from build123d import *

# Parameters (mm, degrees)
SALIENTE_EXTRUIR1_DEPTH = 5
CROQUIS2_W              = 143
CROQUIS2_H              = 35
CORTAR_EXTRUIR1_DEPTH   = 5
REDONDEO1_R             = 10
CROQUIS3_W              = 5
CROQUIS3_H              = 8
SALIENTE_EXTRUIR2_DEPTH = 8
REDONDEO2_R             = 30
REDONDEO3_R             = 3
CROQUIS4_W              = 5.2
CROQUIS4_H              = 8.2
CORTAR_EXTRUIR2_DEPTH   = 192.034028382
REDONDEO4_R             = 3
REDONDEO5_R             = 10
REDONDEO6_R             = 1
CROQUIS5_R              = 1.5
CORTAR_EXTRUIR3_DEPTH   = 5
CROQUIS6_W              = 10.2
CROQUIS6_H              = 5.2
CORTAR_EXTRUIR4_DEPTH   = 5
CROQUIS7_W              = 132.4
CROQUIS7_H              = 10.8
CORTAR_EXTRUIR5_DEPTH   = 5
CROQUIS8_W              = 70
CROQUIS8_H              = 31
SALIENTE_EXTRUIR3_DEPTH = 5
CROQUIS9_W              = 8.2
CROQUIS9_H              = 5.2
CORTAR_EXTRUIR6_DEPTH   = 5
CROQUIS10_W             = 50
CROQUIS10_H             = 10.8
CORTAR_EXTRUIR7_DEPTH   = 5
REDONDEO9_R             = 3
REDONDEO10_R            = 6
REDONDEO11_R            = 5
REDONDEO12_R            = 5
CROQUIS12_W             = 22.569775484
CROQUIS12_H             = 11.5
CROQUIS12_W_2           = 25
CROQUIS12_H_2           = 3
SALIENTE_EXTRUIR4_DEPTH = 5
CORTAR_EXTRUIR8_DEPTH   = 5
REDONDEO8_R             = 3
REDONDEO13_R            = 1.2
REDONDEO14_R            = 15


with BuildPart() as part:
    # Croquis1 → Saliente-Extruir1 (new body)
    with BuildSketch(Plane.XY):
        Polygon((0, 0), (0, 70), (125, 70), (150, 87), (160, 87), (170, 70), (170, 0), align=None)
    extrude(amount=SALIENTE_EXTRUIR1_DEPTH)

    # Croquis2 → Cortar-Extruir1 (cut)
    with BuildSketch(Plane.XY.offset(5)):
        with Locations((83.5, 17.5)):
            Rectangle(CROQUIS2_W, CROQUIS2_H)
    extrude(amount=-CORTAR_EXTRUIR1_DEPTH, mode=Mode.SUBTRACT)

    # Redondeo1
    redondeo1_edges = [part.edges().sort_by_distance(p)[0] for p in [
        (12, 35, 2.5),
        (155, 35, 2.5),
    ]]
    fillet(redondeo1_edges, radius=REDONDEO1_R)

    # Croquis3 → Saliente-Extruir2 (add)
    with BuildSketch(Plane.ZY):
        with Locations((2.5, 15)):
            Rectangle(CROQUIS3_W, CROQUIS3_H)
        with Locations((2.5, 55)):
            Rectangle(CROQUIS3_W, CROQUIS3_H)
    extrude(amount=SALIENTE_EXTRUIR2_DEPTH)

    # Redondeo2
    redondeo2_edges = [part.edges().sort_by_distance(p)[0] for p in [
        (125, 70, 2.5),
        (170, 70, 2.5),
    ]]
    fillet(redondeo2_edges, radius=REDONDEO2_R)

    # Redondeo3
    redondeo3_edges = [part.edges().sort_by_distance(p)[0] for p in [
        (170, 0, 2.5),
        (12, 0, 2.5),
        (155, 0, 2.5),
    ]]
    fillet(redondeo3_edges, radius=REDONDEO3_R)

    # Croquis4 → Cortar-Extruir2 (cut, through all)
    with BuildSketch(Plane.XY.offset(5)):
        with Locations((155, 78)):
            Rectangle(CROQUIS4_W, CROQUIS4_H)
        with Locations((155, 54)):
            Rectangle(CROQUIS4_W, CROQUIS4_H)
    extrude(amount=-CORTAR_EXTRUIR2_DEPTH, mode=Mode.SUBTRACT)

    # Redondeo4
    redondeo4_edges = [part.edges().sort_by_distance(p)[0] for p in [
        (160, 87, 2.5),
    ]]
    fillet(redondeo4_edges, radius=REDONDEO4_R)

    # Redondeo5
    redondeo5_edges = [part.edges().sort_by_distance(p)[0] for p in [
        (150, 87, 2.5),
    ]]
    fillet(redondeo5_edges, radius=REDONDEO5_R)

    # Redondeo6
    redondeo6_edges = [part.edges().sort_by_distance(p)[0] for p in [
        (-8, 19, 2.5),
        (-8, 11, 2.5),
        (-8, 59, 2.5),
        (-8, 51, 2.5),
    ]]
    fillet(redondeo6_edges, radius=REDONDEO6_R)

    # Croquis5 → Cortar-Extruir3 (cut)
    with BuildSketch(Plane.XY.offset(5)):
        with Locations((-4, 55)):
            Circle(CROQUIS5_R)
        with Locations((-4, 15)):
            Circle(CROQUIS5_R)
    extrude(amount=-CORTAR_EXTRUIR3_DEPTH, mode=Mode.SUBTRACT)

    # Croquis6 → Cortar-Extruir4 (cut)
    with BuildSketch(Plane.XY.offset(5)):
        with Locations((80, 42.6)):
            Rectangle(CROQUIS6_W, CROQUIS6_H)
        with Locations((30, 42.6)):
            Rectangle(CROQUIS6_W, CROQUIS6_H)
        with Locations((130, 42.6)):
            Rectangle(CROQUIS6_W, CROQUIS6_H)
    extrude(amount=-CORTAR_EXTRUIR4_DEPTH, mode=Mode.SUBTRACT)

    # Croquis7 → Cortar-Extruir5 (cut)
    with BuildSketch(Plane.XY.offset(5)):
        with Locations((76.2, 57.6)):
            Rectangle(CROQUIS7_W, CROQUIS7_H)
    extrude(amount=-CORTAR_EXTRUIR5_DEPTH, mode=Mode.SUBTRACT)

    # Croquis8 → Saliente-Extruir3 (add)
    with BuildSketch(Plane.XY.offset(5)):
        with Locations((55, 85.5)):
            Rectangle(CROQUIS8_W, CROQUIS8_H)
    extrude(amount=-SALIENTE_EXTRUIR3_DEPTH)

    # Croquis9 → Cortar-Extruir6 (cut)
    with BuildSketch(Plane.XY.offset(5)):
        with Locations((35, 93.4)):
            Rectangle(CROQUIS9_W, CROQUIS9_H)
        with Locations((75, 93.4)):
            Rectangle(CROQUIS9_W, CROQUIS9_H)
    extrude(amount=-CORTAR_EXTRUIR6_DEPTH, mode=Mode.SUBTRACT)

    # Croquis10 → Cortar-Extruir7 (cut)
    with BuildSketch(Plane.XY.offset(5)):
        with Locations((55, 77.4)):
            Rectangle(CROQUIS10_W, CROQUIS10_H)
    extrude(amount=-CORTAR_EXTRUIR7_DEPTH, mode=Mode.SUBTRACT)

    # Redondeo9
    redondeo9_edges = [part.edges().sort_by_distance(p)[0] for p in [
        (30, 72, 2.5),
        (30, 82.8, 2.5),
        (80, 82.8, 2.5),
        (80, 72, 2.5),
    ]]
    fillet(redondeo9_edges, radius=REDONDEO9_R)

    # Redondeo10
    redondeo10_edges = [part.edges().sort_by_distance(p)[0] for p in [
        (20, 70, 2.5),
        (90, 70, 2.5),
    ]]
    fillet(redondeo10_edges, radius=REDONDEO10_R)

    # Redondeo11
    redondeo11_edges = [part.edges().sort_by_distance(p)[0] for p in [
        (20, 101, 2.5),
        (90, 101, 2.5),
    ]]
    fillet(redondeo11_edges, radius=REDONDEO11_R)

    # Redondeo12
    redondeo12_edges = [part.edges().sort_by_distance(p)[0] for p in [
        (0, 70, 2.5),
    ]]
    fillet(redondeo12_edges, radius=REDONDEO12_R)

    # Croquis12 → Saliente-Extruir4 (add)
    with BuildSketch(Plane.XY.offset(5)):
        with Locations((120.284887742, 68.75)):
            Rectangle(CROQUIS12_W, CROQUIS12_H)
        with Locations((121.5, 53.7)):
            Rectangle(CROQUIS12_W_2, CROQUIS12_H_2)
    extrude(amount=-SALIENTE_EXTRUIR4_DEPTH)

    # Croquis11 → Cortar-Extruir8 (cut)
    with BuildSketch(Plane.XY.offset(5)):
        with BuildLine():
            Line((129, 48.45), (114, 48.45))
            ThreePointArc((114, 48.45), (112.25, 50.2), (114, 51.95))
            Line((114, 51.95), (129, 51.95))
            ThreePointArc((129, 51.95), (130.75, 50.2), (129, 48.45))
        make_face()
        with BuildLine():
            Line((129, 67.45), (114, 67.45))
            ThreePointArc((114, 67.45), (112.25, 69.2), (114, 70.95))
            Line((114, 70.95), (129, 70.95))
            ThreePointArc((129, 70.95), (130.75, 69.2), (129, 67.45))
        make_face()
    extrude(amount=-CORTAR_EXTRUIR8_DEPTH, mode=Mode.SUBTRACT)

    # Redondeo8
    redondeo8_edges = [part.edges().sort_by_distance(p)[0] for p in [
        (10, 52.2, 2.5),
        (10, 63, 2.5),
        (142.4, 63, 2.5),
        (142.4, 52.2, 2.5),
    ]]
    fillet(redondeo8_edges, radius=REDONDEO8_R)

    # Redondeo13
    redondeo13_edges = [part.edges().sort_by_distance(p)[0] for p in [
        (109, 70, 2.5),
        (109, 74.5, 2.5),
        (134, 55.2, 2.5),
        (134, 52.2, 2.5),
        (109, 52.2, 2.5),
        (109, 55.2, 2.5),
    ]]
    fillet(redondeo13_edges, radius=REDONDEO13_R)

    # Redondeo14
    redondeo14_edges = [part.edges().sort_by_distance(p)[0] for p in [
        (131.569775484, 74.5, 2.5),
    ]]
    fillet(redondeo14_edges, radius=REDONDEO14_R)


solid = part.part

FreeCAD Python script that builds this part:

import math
import FreeCAD as App
import Part
import Sketcher

V = App.Vector
Q = App.Units.Quantity


def edges_at(feature, points):
    """Names of the edges that pass closest to the given points."""
    edges = feature.Shape.Edges
    near = lambda p: min(range(len(edges)), key=lambda i: edges[i].distToShape(Part.Vertex(*p))[0])
    return sorted({f"Edge{near(p) + 1}" for p in points})


def add_polygon(sketch, points):
    """Adds a closed chain of lines whose ends are joined by coincident constraints."""
    first, n = sketch.GeometryCount, len(points)
    for a, b in zip(points, points[1:] + points[:1]):
        sketch.addGeometry(Part.LineSegment(App.Vector(*a, 0), App.Vector(*b, 0)), False)
    for i in range(n):
        sketch.addConstraint(Sketcher.Constraint("Coincident", first + i, 2, first + (i + 1) % n, 1))

doc = App.newDocument("Part")
body = doc.addObject("PartDesign::Body", "Body")

# Sketch on XY plane
sketch1 = body.newObject("Sketcher::SketchObject", "Sketch")
sketch1.AttachmentSupport = (doc.getObject("XY_Plane"), [""])
sketch1.MapMode = "FlatFace"
add_polygon(sketch1, [(0, 70), (0, 0), (170, 0), (170, 70), (160, 87), (150, 87), (125, 70)])  # lines 0-6
sketch1.addConstraint([
    Sketcher.Constraint("Vertical", 0),
    Sketcher.Constraint("Horizontal", 1),
    Sketcher.Constraint("Vertical", 2),
    Sketcher.Constraint("Horizontal", 4),
    Sketcher.Constraint("Horizontal", 6),
    Sketcher.Constraint("Coincident", 0, 2, -1, 1),
    Sketcher.Constraint("Horizontal", 2, 2, 5, 2),
    Sketcher.Constraint("DistanceX", 1, 1, 1, 2, Q("170 mm")),
    Sketcher.Constraint("DistanceX", 4, 2, 4, 1, Q("10 mm")),
    Sketcher.Constraint("DistanceX", 6, 2, 6, 1, Q("125 mm")),
    Sketcher.Constraint("DistanceY", 0, 2, 0, 1, Q("70 mm")),
    Sketcher.Constraint("DistanceX", -1, 1, 3, 2, Q("160 mm")),
    Sketcher.Constraint("DistanceY", -1, 1, 3, 2, Q("87 mm")),
])
pad1 = body.newObject("PartDesign::Pad", "Pad")
pad1.Profile = sketch1
pad1.Length = 5

# Sketch on XY plane
sketch2 = body.newObject("Sketcher::SketchObject", "Sketch001")
sketch2.AttachmentSupport = (doc.getObject("XY_Plane"), [""])
sketch2.MapMode = "FlatFace"
sketch2.AttachmentOffset = App.Placement(V(0, 0, 5), App.Rotation())
add_polygon(sketch2, [(12, 35), (12, 0), (155, 0), (155, 35)])  # lines 0-3
sketch2.addConstraint([
    Sketcher.Constraint("Vertical", 0),
    Sketcher.Constraint("Horizontal", 1),
    Sketcher.Constraint("Vertical", 2),
    Sketcher.Constraint("Horizontal", 3),
    Sketcher.Constraint("PointOnObject", 0, 2, -1),
    Sketcher.Constraint("DistanceX", 1, 1, 1, 2, Q("143 mm")),
    Sketcher.Constraint("DistanceY", 0, 2, 0, 1, Q("35 mm")),
    Sketcher.Constraint("DistanceX", -1, 1, 0, 2, Q("12 mm")),
])
pocket1 = body.newObject("PartDesign::Pocket", "Pocket")
pocket1.Profile = sketch2
pocket1.Length = 5
doc.recompute()

fillet = body.newObject("PartDesign::Fillet", "Fillet")
fillet.Base = (pocket1, edges_at(pocket1, [(12, 35, 2.5), (155, 35, 2.5)]))
fillet.Radius = 10

# Sketch on YZ plane
sketch3 = body.newObject("Sketcher::SketchObject", "Sketch002")
sketch3.AttachmentSupport = (doc.getObject("YZ_Plane"), [""])
sketch3.MapMode = "FlatFace"
add_polygon(sketch3, [(19, 0), (11, 0), (11, 5), (19, 5)])  # lines 0-3
add_polygon(sketch3, [(59, 0), (51, 0), (51, 5), (59, 5)])  # lines 4-7
sketch3.addConstraint([
    Sketcher.Constraint("Horizontal", 0),
    Sketcher.Constraint("Vertical", 1),
    Sketcher.Constraint("Horizontal", 2),
    Sketcher.Constraint("Vertical", 3),
    Sketcher.Constraint("Horizontal", 4),
    Sketcher.Constraint("Vertical", 5),
    Sketcher.Constraint("Horizontal", 6),
    Sketcher.Constraint("Vertical", 7),
    Sketcher.Constraint("PointOnObject", 0, 2, -1),
    Sketcher.Constraint("PointOnObject", 4, 2, -1),
    Sketcher.Constraint("Horizontal", 2, 2, 5, 2),
    Sketcher.Constraint("Equal", 2, 4),
    Sketcher.Constraint("DistanceX", 0, 2, 0, 1, Q("8 mm")),
    Sketcher.Constraint("DistanceY", 1, 1, 1, 2, Q("5 mm")),
    Sketcher.Constraint("DistanceX", -1, 1, 0, 2, Q("11 mm")),
    Sketcher.Constraint("DistanceX", -1, 1, 4, 2, Q("51 mm")),
])
pad2 = body.newObject("PartDesign::Pad", "Pad001")
pad2.Profile = sketch3
pad2.Length = 8
pad2.Reversed = True
doc.recompute()

fillet2 = body.newObject("PartDesign::Fillet", "Fillet001")
fillet2.Base = (pad2, edges_at(pad2, [(125, 70, 2.5), (170, 70, 2.5)]))
fillet2.Radius = 30
doc.recompute()

fillet3 = body.newObject("PartDesign::Fillet", "Fillet002")
fillet3.Base = (fillet2, edges_at(fillet2, [(170, 0, 2.5), (12, 0, 2.5), (155, 0, 2.5)]))
fillet3.Radius = 3

# Sketch on XY plane
sketch4 = body.newObject("Sketcher::SketchObject", "Sketch003")
sketch4.AttachmentSupport = (doc.getObject("XY_Plane"), [""])
sketch4.MapMode = "FlatFace"
sketch4.AttachmentOffset = App.Placement(V(0, 0, 5), App.Rotation())
add_polygon(sketch4, [(152, 82), (152, 74), (158, 74), (158, 82)])  # lines 0-3
add_polygon(sketch4, [(152, 58), (152, 50), (158, 50), (158, 58)])  # lines 4-7
sketch4.addConstraint([
    Sketcher.Constraint("Vertical", 0),
    Sketcher.Constraint("Horizontal", 1),
    Sketcher.Constraint("Vertical", 2),
    Sketcher.Constraint("Horizontal", 3),
    Sketcher.Constraint("Vertical", 4),
    Sketcher.Constraint("Horizontal", 5),
    Sketcher.Constraint("Vertical", 6),
    Sketcher.Constraint("Horizontal", 7),
    Sketcher.Constraint("Vertical", 3, 2, 4, 2),
    Sketcher.Constraint("Vertical", 2, 2, 5, 2),
    Sketcher.Constraint("Equal", 2, 4),
    Sketcher.Constraint("DistanceX", 1, 1, 1, 2, Q("5.2 mm")),
    Sketcher.Constraint("DistanceY", 0, 2, 0, 1, Q("8.2 mm")),
    Sketcher.Constraint("DistanceY", 4, 2, 0, 2, Q("24 mm")),
    Sketcher.Constraint("DistanceX", -1, 1, 0, 2, Q("152.4 mm")),
    Sketcher.Constraint("DistanceY", -1, 1, 0, 2, Q("73.9 mm")),
])
pocket2 = body.newObject("PartDesign::Pocket", "Pocket001")
pocket2.Profile = sketch4
pocket2.Type = "ThroughAll"
doc.recompute()

fillet4 = body.newObject("PartDesign::Fillet", "Fillet003")
fillet4.Base = (pocket2, edges_at(pocket2, [(160, 87, 2.5)]))
fillet4.Radius = 3
doc.recompute()

fillet5 = body.newObject("PartDesign::Fillet", "Fillet004")
fillet5.Base = (fillet4, edges_at(fillet4, [(150, 87, 2.5)]))
fillet5.Radius = 10
doc.recompute()

fillet6 = body.newObject("PartDesign::Fillet", "Fillet005")
fillet6.Base = (fillet5, edges_at(fillet5, [
    (-8, 19, 2.5),
    (-8, 11, 2.5),
    (-8, 59, 2.5),
    (-8, 51, 2.5),
]))
fillet6.Radius = 1

# Sketch on XY plane
sketch5 = body.newObject("Sketcher::SketchObject", "Sketch004")
sketch5.AttachmentSupport = (doc.getObject("XY_Plane"), [""])
sketch5.MapMode = "FlatFace"
sketch5.AttachmentOffset = App.Placement(V(0, 0, 5), App.Rotation())
sketch5.addGeometry([
    Part.Circle(V(-4, 55, 0), V(0, 0, 1), 1.5),
    Part.Circle(V(-4, 15, 0), V(0, 0, 1), 1.5),
], False)
sketch5.addConstraint([
    Sketcher.Constraint("Equal", 0, 1),
    Sketcher.Constraint("Vertical", 0, 3, 1, 3),
    Sketcher.Constraint("Diameter", 0, Q("3 mm")),
    Sketcher.Constraint("DistanceX", 0, 3, -1, 1, Q("4 mm")),
    Sketcher.Constraint("DistanceY", -1, 1, 0, 3, Q("55 mm")),
    Sketcher.Constraint("DistanceY", -1, 1, 1, 3, Q("15 mm")),
])
pocket3 = body.newObject("PartDesign::Pocket", "Pocket002")
pocket3.Profile = sketch5
pocket3.Length = 5

# Sketch on XY plane
sketch6 = body.newObject("Sketcher::SketchObject", "Sketch005")
sketch6.AttachmentSupport = (doc.getObject("XY_Plane"), [""])
sketch6.MapMode = "FlatFace"
sketch6.AttachmentOffset = App.Placement(V(0, 0, 5), App.Rotation())
add_polygon(sketch6, [(75, 45), (75, 40), (85, 40), (85, 45)])  # lines 0-3
add_polygon(sketch6, [(25, 45), (25, 40), (35, 40), (35, 45)])  # lines 4-7
add_polygon(sketch6, [(125, 45), (125, 40), (135, 40), (135, 45)])  # lines 8-11
sketch6.addConstraint([
    Sketcher.Constraint("Vertical", 0),
    Sketcher.Constraint("Horizontal", 1),
    Sketcher.Constraint("Vertical", 2),
    Sketcher.Constraint("Horizontal", 3),
    Sketcher.Constraint("Vertical", 4),
    Sketcher.Constraint("Horizontal", 5),
    Sketcher.Constraint("Vertical", 6),
    Sketcher.Constraint("Horizontal", 7),
    Sketcher.Constraint("Vertical", 8),
    Sketcher.Constraint("Horizontal", 9),
    Sketcher.Constraint("Vertical", 10),
    Sketcher.Constraint("Horizontal", 11),
    Sketcher.Constraint("Horizontal", 1, 2, 4, 2),
    Sketcher.Constraint("Horizontal", 3, 2, 6, 2),
    Sketcher.Constraint("Horizontal", 5, 2, 8, 2),
    Sketcher.Constraint("Horizontal", 7, 2, 10, 2),
    Sketcher.Constraint("Equal", 3, 5),
    Sketcher.Constraint("Equal", 7, 9),
    Sketcher.Constraint("DistanceX", 1, 1, 1, 2, Q("10.2 mm")),
    Sketcher.Constraint("DistanceY", 0, 2, 0, 1, Q("5.2 mm")),
    Sketcher.Constraint("DistanceY", -1, 1, 0, 2, Q("40 mm")),
    Sketcher.Constraint("DistanceX", 4, 2, 0, 2, Q("50 mm")),
    Sketcher.Constraint("DistanceX", 0, 2, 8, 2, Q("50 mm")),
    Sketcher.Constraint("DistanceX", -1, 1, 0, 2, Q("74.9 mm")),
])
pocket4 = body.newObject("PartDesign::Pocket", "Pocket003")
pocket4.Profile = sketch6
pocket4.Length = 5

# Sketch on XY plane
sketch7 = body.newObject("Sketcher::SketchObject", "Sketch006")
sketch7.AttachmentSupport = (doc.getObject("XY_Plane"), [""])
sketch7.MapMode = "FlatFace"
sketch7.AttachmentOffset = App.Placement(V(0, 0, 5), App.Rotation())
add_polygon(sketch7, [(10, 63), (10, 52), (142, 52), (142, 63)])  # lines 0-3
sketch7.addConstraint([
    Sketcher.Constraint("Vertical", 0),
    Sketcher.Constraint("Horizontal", 1),
    Sketcher.Constraint("Vertical", 2),
    Sketcher.Constraint("Horizontal", 3),
    Sketcher.Constraint("DistanceX", 1, 1, 1, 2, Q("132.4 mm")),
    Sketcher.Constraint("DistanceY", 0, 2, 0, 1, Q("10.8 mm")),
    Sketcher.Constraint("DistanceX", -1, 1, 0, 2, Q("10 mm")),
    Sketcher.Constraint("DistanceY", -1, 1, 2, 2, Q("63 mm")),
])
pocket5 = body.newObject("PartDesign::Pocket", "Pocket004")
pocket5.Profile = sketch7
pocket5.Length = 5

# Sketch on XY plane
sketch8 = body.newObject("Sketcher::SketchObject", "Sketch007")
sketch8.AttachmentSupport = (doc.getObject("XY_Plane"), [""])
sketch8.MapMode = "FlatFace"
sketch8.AttachmentOffset = App.Placement(V(0, 0, 5), App.Rotation())
add_polygon(sketch8, [(20, 101), (20, 70), (90, 70), (90, 101)])  # lines 0-3
sketch8.addConstraint([
    Sketcher.Constraint("Vertical", 0),
    Sketcher.Constraint("Horizontal", 1),
    Sketcher.Constraint("Vertical", 2),
    Sketcher.Constraint("Horizontal", 3),
    Sketcher.Constraint("DistanceX", 1, 1, 1, 2, Q("70 mm")),
    Sketcher.Constraint("DistanceY", 0, 2, 0, 1, Q("31 mm")),
    Sketcher.Constraint("DistanceX", -1, 1, 0, 2, Q("20 mm")),
    Sketcher.Constraint("DistanceY", -1, 1, 0, 2, Q("70 mm")),
])
pad3 = body.newObject("PartDesign::Pad", "Pad002")
pad3.Profile = sketch8
pad3.Length = 5
pad3.Reversed = True

# Sketch on XY plane
sketch9 = body.newObject("Sketcher::SketchObject", "Sketch008")
sketch9.AttachmentSupport = (doc.getObject("XY_Plane"), [""])
sketch9.MapMode = "FlatFace"
sketch9.AttachmentOffset = App.Placement(V(0, 0, 5), App.Rotation())
add_polygon(sketch9, [(31, 96), (31, 91), (39, 91), (39, 96)])  # lines 0-3
add_polygon(sketch9, [(71, 96), (71, 91), (79, 91), (79, 96)])  # lines 4-7
sketch9.addConstraint([
    Sketcher.Constraint("Vertical", 0),
    Sketcher.Constraint("Horizontal", 1),
    Sketcher.Constraint("Vertical", 2),
    Sketcher.Constraint("Horizontal", 3),
    Sketcher.Constraint("Vertical", 4),
    Sketcher.Constraint("Horizontal", 5),
    Sketcher.Constraint("Vertical", 6),
    Sketcher.Constraint("Horizontal", 7),
    Sketcher.Constraint("Horizontal", 1, 2, 4, 2),
    Sketcher.Constraint("Horizontal", 3, 2, 6, 2),
    Sketcher.Constraint("Equal", 3, 5),
    Sketcher.Constraint("DistanceX", 1, 1, 1, 2, Q("8.2 mm")),
    Sketcher.Constraint("DistanceY", 0, 2, 0, 1, Q("5.2 mm")),
    Sketcher.Constraint("DistanceY", -1, 1, 2, 2, Q("96 mm")),
    Sketcher.Constraint("DistanceX", 0, 2, 4, 2, Q("40 mm")),
    Sketcher.Constraint("DistanceX", -1, 1, 0, 2, Q("30.9 mm")),
])
pocket6 = body.newObject("PartDesign::Pocket", "Pocket005")
pocket6.Profile = sketch9
pocket6.Length = 5

# Sketch on XY plane
sketch10 = body.newObject("Sketcher::SketchObject", "Sketch009")
sketch10.AttachmentSupport = (doc.getObject("XY_Plane"), [""])
sketch10.MapMode = "FlatFace"
sketch10.AttachmentOffset = App.Placement(V(0, 0, 5), App.Rotation())
add_polygon(sketch10, [(30, 83), (30, 72), (80, 72), (80, 83)])  # lines 0-3
sketch10.addConstraint([
    Sketcher.Constraint("Vertical", 0),
    Sketcher.Constraint("Horizontal", 1),
    Sketcher.Constraint("Vertical", 2),
    Sketcher.Constraint("Horizontal", 3),
    Sketcher.Constraint("DistanceX", 1, 1, 1, 2, Q("50 mm")),
    Sketcher.Constraint("DistanceY", 0, 2, 0, 1, Q("10.8 mm")),
    Sketcher.Constraint("DistanceX", -1, 1, 0, 2, Q("30 mm")),
    Sketcher.Constraint("DistanceY", -1, 1, 0, 2, Q("72 mm")),
])
pocket7 = body.newObject("PartDesign::Pocket", "Pocket006")
pocket7.Profile = sketch10
pocket7.Length = 5
doc.recompute()

fillet7 = body.newObject("PartDesign::Fillet", "Fillet006")
fillet7.Base = (pocket7, edges_at(pocket7, [
    (30, 72, 2.5),
    (30, 82.8, 2.5),
    (80, 82.8, 2.5),
    (80, 72, 2.5),
]))
fillet7.Radius = 3
doc.recompute()

fillet8 = body.newObject("PartDesign::Fillet", "Fillet007")
fillet8.Base = (fillet7, edges_at(fillet7, [(20, 70, 2.5), (90, 70, 2.5)]))
fillet8.Radius = 6
doc.recompute()

fillet9 = body.newObject("PartDesign::Fillet", "Fillet008")
fillet9.Base = (fillet8, edges_at(fillet8, [(20, 101, 2.5), (90, 101, 2.5)]))
fillet9.Radius = 5
doc.recompute()

fillet10 = body.newObject("PartDesign::Fillet", "Fillet009")
fillet10.Base = (fillet9, edges_at(fillet9, [(0, 70, 2.5)]))
fillet10.Radius = 5

# Sketch on XY plane
sketch11 = body.newObject("Sketcher::SketchObject", "Sketch010")
sketch11.AttachmentSupport = (doc.getObject("XY_Plane"), [""])
sketch11.MapMode = "FlatFace"
sketch11.AttachmentOffset = App.Placement(V(0, 0, 5), App.Rotation())
add_polygon(sketch11, [(109, 74.5), (109, 63), (131.6, 63), (131.6, 74.5)])  # lines 0-3
add_polygon(sketch11, [(109, 55.2), (109, 52.2), (134, 52.2), (134, 55.2)])  # lines 4-7
sketch11.addConstraint([
    Sketcher.Constraint("Vertical", 0),
    Sketcher.Constraint("Horizontal", 1),
    Sketcher.Constraint("Vertical", 2),
    Sketcher.Constraint("Horizontal", 3),
    Sketcher.Constraint("Vertical", 4),
    Sketcher.Constraint("Horizontal", 5),
    Sketcher.Constraint("Vertical", 6),
    Sketcher.Constraint("Horizontal", 7),
    Sketcher.Constraint("Vertical", 3, 2, 4, 2),
    Sketcher.Constraint("DistanceX", 5, 1, 5, 2, Q("25 mm")),
    Sketcher.Constraint("DistanceY", 4, 2, 4, 1, Q("3 mm")),
    Sketcher.Constraint("DistanceY", 0, 2, 0, 1, Q("11.5 mm")),
    Sketcher.Constraint("DistanceX", -1, 1, 0, 2, Q("109 mm")),
    Sketcher.Constraint("DistanceY", -1, 1, 0, 2, Q("63 mm")),
    Sketcher.Constraint("DistanceY", -1, 1, 4, 2, Q("52.2 mm")),
    Sketcher.Constraint("DistanceX", 1, 1, 1, 2, Q("22.569775 mm")),
])
pad4 = body.newObject("PartDesign::Pad", "Pad003")
pad4.Profile = sketch11
pad4.Length = 5
pad4.Reversed = True

# Sketch on XY plane
sketch12 = body.newObject("Sketcher::SketchObject", "Sketch011")
sketch12.AttachmentSupport = (doc.getObject("XY_Plane"), [""])
sketch12.MapMode = "FlatFace"
sketch12.AttachmentOffset = App.Placement(V(0, 0, 5), App.Rotation())
sketch12.addGeometry([
    Part.LineSegment(V(114, 48.5, 0), V(129, 48.5, 0)),  # 0
    Part.ArcOfCircle(Part.Circle(V(129, 50.2, 0), V(0, 0, 1), 1.8), math.radians(-90), math.radians(90)),  # 1
    Part.LineSegment(V(129, 52, 0), V(114, 52, 0)),  # 2
    Part.ArcOfCircle(Part.Circle(V(114, 50.2, 0), V(0, 0, 1), 1.8), math.radians(90), math.radians(270)),  # 3
    Part.LineSegment(V(114, 67.5, 0), V(129, 67.5, 0)),  # 4
    Part.ArcOfCircle(Part.Circle(V(129, 69.2, 0), V(0, 0, 1), 1.8), math.radians(-90), math.radians(90)),  # 5
    Part.LineSegment(V(129, 71, 0), V(114, 71, 0)),  # 6
    Part.ArcOfCircle(Part.Circle(V(114, 69.2, 0), V(0, 0, 1), 1.8), math.radians(90), math.radians(270)),  # 7
], False)
sketch12.addConstraint([
    Sketcher.Constraint("Tangent", 0, 2, 1, 1),
    Sketcher.Constraint("Tangent", 1, 2, 2, 1),
    Sketcher.Constraint("Tangent", 2, 2, 3, 1),
    Sketcher.Constraint("Tangent", 3, 2, 0, 1),
    Sketcher.Constraint("Tangent", 4, 2, 5, 1),
    Sketcher.Constraint("Tangent", 5, 2, 6, 1),
    Sketcher.Constraint("Tangent", 6, 2, 7, 1),
    Sketcher.Constraint("Tangent", 7, 2, 4, 1),
    Sketcher.Constraint("Horizontal", 0),
    Sketcher.Constraint("Horizontal", 2),
    Sketcher.Constraint("Horizontal", 4),
    Sketcher.Constraint("Horizontal", 6),
    Sketcher.Constraint("Equal", 3, 5),
    Sketcher.Constraint("Vertical", 1, 3, 5, 3),
    Sketcher.Constraint("Vertical", 3, 3, 7, 3),
    Sketcher.Constraint("DistanceX", 0, 1, 0, 2, Q("15 mm")),
    Sketcher.Constraint("Radius", 1, Q("1.75 mm")),
    Sketcher.Constraint("DistanceX", -1, 1, 1, 3, Q("129 mm")),
    Sketcher.Constraint("DistanceY", 1, 3, 5, 3, Q("19 mm")),
    Sketcher.Constraint("DistanceY", -1, 1, 1, 3, Q("50.2 mm")),
])
pocket8 = body.newObject("PartDesign::Pocket", "Pocket007")
pocket8.Profile = sketch12
pocket8.Length = 5
doc.recompute()

fillet11 = body.newObject("PartDesign::Fillet", "Fillet010")
fillet11.Base = (pocket8, edges_at(pocket8, [
    (10, 52.2, 2.5),
    (10, 63, 2.5),
    (142.4, 63, 2.5),
    (142.4, 52.2, 2.5),
]))
fillet11.Radius = 3
doc.recompute()

fillet12 = body.newObject("PartDesign::Fillet", "Fillet011")
fillet12.Base = (fillet11, edges_at(fillet11, [
    (109, 70, 2.5),
    (109, 74.5, 2.5),
    (134, 55.2, 2.5),
    (134, 52.2, 2.5),
    (109, 52.2, 2.5),
    (109, 55.2, 2.5),
]))
fillet12.Radius = 1.2
doc.recompute()

fillet13 = body.newObject("PartDesign::Fillet", "Fillet012")
fillet13.Base = (fillet12, edges_at(fillet12, [(131.57, 74.5, 2.5)]))
fillet13.Radius = 15

doc.recompute()
